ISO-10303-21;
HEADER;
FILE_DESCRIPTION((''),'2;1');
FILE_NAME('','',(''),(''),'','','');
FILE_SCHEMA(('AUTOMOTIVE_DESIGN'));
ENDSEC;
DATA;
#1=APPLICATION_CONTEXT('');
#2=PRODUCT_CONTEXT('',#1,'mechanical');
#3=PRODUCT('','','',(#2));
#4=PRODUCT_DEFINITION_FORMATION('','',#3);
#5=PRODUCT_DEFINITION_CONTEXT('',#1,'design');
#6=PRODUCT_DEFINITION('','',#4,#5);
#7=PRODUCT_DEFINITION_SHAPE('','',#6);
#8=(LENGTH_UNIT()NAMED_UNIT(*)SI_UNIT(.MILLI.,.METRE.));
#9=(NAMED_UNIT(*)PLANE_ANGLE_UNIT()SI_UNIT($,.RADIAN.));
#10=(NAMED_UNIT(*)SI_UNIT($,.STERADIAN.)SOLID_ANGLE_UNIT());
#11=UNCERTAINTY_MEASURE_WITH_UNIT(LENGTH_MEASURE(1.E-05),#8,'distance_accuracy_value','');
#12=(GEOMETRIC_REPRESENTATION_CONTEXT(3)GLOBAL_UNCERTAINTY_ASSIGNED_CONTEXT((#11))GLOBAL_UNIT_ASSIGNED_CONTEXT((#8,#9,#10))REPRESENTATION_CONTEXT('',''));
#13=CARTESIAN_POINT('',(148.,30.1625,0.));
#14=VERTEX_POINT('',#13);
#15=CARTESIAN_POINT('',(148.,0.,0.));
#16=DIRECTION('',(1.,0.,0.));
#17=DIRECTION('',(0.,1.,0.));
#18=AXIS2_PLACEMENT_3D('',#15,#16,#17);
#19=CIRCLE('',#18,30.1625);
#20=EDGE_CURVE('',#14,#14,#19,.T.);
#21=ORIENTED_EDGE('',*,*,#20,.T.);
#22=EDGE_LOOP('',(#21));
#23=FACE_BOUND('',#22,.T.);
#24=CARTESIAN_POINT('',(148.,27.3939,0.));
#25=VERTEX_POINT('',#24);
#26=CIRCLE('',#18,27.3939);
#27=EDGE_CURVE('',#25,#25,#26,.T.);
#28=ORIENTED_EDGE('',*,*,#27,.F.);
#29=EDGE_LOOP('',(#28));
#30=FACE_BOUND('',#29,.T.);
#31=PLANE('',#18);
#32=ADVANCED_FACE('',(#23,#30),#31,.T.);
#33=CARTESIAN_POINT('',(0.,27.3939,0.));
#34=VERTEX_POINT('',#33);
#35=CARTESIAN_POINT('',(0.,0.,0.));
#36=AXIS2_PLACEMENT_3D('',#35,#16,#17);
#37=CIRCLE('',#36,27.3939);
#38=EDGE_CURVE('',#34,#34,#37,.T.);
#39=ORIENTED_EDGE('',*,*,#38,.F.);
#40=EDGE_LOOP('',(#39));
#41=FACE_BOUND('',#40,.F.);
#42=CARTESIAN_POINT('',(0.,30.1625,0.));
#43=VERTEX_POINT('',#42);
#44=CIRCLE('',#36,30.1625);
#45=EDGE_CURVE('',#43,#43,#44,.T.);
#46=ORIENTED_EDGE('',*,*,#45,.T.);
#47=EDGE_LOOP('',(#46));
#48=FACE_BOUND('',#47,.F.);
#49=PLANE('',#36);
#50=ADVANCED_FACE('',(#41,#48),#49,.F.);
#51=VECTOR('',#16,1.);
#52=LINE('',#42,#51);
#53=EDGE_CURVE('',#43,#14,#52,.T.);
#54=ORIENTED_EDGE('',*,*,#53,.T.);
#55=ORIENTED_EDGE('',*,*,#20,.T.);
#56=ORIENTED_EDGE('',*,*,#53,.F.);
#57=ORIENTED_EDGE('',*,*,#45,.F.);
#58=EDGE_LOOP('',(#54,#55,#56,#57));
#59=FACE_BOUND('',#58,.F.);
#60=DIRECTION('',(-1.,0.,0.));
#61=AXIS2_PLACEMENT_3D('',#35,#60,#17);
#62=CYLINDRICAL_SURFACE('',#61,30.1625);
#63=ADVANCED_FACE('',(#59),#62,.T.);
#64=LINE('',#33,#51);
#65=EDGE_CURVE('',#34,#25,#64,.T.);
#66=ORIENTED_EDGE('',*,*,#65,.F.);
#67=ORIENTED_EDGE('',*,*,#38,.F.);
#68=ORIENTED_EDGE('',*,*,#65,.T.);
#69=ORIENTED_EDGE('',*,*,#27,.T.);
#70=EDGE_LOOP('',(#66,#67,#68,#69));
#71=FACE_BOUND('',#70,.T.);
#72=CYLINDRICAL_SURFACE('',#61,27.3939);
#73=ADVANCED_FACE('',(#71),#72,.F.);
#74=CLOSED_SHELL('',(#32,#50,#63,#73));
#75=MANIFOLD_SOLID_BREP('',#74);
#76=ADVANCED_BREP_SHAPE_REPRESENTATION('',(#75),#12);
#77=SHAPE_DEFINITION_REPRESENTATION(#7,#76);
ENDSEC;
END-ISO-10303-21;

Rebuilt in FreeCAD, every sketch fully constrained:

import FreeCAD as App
import Part
import Sketcher
from FreeCAD import Vector
Q = App.Units.Quantity

doc = App.newDocument("Part")
params = doc.addObject("Spreadsheet::Sheet", "Params")
for row, (alias, value) in enumerate([
    ("sketch1_diameter", "2.375 in"),
    ("sketch1_diameter2", "2.157 in"),
    ("pad1_length", "148 mm"),
], start=1):
    params.set(f"A{row}", alias)
    params.set(f"B{row}", "=" + value)
    params.setAlias(f"B{row}", alias)

body = doc.addObject("PartDesign::Body", "Body")

# Sketch on YZ plane
sketch1 = body.newObject("Sketcher::SketchObject", "Sketch")
sketch1.AttachmentSupport = (doc.getObject("YZ_Plane"), [""])
sketch1.MapMode = "FlatFace"
sketch1.addGeometry([
    Part.Circle(Vector(0, 0, 0), Vector(0, 0, 1), 30),
    Part.Circle(Vector(0, 0, 0), Vector(0, 0, 1), 27),
], False)
sketch1.addConstraint([
    Sketcher.Constraint("Coincident", 0, 3, -1, 1),
    Sketcher.Constraint("Coincident", 1, 3, -1, 1),
    Sketcher.Constraint("Diameter", 0, Q("2.375 in")),
    Sketcher.Constraint("Diameter", 1, Q("2.157 in")),
])
sketch1.setExpression("Constraints[2]", "Params.sketch1_diameter")
sketch1.setExpression("Constraints[3]", "Params.sketch1_diameter2")
pad1 = body.newObject("PartDesign::Pad", "Pad")
pad1.Profile = sketch1
pad1.setExpression("Length", "Params.pad1_length")

doc.recompute()
